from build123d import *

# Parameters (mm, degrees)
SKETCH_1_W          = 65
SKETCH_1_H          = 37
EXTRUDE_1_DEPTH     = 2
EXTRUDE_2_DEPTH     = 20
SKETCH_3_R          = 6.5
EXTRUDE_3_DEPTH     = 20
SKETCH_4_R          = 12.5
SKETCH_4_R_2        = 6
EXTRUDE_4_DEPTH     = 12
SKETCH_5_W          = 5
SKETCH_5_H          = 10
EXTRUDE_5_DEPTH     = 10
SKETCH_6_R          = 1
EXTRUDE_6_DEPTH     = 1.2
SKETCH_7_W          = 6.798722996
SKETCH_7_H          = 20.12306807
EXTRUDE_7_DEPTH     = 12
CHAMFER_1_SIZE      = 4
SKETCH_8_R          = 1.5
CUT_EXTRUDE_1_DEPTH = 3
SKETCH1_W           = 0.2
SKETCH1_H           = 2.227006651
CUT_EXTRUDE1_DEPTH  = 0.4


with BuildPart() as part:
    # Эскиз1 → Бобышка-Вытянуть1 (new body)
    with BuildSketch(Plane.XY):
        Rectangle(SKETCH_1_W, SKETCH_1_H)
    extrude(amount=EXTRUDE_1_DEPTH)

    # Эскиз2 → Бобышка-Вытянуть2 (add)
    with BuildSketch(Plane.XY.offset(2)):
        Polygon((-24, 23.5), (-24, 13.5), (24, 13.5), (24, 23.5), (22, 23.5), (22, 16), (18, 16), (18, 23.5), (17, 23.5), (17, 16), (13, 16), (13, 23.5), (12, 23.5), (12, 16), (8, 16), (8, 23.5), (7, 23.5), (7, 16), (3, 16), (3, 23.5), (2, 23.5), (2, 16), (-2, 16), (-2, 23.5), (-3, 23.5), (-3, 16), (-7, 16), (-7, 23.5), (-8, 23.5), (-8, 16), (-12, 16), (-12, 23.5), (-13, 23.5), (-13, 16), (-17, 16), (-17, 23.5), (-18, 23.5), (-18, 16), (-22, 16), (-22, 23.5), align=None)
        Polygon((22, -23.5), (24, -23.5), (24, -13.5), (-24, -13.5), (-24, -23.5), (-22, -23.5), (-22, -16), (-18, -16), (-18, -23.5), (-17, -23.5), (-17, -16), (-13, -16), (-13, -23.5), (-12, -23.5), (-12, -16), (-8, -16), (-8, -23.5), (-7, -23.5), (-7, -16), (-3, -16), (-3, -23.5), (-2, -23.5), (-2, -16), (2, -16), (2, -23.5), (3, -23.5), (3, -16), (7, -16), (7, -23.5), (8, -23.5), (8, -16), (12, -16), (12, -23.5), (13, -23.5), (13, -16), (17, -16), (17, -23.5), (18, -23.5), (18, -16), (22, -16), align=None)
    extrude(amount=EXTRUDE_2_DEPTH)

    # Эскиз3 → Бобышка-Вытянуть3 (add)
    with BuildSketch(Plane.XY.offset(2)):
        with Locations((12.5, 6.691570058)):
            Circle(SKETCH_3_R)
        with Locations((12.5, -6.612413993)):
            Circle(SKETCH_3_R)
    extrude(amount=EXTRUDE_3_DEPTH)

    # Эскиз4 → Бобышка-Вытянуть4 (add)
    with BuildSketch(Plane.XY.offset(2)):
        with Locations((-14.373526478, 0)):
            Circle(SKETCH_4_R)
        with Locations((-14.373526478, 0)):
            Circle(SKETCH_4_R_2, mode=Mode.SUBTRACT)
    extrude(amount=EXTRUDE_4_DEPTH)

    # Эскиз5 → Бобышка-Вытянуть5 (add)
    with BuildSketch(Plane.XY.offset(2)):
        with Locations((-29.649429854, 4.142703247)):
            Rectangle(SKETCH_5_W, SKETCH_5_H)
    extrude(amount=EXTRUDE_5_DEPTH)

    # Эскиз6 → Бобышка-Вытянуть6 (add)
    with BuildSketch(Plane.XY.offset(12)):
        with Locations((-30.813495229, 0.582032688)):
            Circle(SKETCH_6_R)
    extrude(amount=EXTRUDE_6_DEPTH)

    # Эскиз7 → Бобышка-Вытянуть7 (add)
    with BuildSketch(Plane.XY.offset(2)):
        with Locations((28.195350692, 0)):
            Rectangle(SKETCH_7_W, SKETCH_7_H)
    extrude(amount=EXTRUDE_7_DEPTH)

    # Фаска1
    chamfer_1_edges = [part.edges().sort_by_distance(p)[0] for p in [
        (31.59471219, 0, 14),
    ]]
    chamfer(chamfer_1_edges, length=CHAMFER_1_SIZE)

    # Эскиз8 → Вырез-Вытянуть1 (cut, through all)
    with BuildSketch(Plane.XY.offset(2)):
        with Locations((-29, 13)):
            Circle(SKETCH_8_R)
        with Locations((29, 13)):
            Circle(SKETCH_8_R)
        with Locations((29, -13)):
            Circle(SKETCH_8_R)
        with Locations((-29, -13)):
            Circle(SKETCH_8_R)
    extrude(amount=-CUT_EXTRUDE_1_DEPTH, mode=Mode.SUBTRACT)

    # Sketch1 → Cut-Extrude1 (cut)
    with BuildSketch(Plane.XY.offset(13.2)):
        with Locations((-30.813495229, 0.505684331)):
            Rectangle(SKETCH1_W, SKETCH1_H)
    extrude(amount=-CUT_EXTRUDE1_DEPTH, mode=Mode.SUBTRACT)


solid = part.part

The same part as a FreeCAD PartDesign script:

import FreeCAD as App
import Part
import Sketcher

V = App.Vector


def edges_at(feature, points):
    """Names of the edges that pass closest to the given points."""
    edges = feature.Shape.Edges
    near = lambda p: min(range(len(edges)), key=lambda i: edges[i].distToShape(Part.Vertex(*p))[0])
    return sorted({f"Edge{near(p) + 1}" for p in points})

doc = App.newDocument("Part")
body = doc.addObject("PartDesign::Body", "Body")

# Sketch on XY plane
sketch1 = body.newObject("Sketcher::SketchObject", "Sketch")
sketch1.AttachmentSupport = (doc.getObject("XY_Plane"), [""])
sketch1.MapMode = "FlatFace"
sketch1.addGeometry(Part.LineSegment(V(-32, 18, 0), V(-32, -18, 0)), False)
sketch1.addGeometry(Part.LineSegment(V(-32, -18, 0), V(32, -18, 0)), False)
sketch1.addGeometry(Part.LineSegment(V(32, -18, 0), V(32, 18, 0)), False)
sketch1.addGeometry(Part.LineSegment(V(32, 18, 0), V(-32, 18, 0)), False)
sketch1.addConstraint(Sketcher.Constraint("Coincident", 0, 2, 1, 1))
sketch1.addConstraint(Sketcher.Constraint("Coincident", 1, 2, 2, 1))
sketch1.addConstraint(Sketcher.Constraint("Coincident", 2, 2, 3, 1))
sketch1.addConstraint(Sketcher.Constraint("Coincident", 3, 2, 0, 1))
sketch1.addConstraint(Sketcher.Constraint("Vertical", 0))
sketch1.addConstraint(Sketcher.Constraint("Horizontal", 1))
sketch1.addConstraint(Sketcher.Constraint("Vertical", 2))
sketch1.addConstraint(Sketcher.Constraint("Horizontal", 3))
sketch1.addConstraint(Sketcher.Constraint("Symmetric", 0, 2, 2, 2, -1, 1))
sketch1.addConstraint(Sketcher.Constraint("DistanceX", 1, 1, 1, 2, 65.0))
sketch1.addConstraint(Sketcher.Constraint("DistanceY", 0, 2, 0, 1, 37.0))
pad1 = body.newObject("PartDesign::Pad", "Pad")
pad1.Profile = sketch1
pad1.Length = 2

# Sketch on XY plane
sketch2 = body.newObject("Sketcher::SketchObject", "Sketch001")
sketch2.AttachmentSupport = (doc.getObject("XY_Plane"), [""])
sketch2.MapMode = "FlatFace"
sketch2.AttachmentOffset = App.Placement(V(0, 0, 2), App.Rotation())
sketch2.addGeometry(Part.LineSegment(V(-24, 23.5, 0), V(-24, 13.5, 0)), False)
sketch2.addGeometry(Part.LineSegment(V(-24, 13.5, 0), V(24, 13.5, 0)), False)
sketch2.addGeometry(Part.LineSegment(V(24, 13.5, 0), V(24, 23.5, 0)), False)
sketch2.addGeometry(Part.LineSegment(V(24, 23.5, 0), V(22, 23.5, 0)), False)
sketch2.addGeometry(Part.LineSegment(V(22, 23.5, 0), V(22, 16, 0)), False)
sketch2.addGeometry(Part.LineSegment(V(22, 16, 0), V(18, 16, 0)), False)
sketch2.addGeometry(Part.LineSegment(V(18, 16, 0), V(18, 23.5, 0)), False)
sketch2.addGeometry(Part.LineSegment(V(18, 23.5, 0), V(17, 23.5, 0)), False)
sketch2.addGeometry(Part.LineSegment(V(17, 23.5, 0), V(17, 16, 0)), False)
sketch2.addGeometry(Part.LineSegment(V(17, 16, 0), V(13, 16, 0)), False)
sketch2.addGeometry(Part.LineSegment(V(13, 16, 0), V(13, 23.5, 0)), False)
sketch2.addGeometry(Part.LineSegment(V(13, 23.5, 0), V(12, 23.5, 0)), False)
sketch2.addGeometry(Part.LineSegment(V(12, 23.5, 0), V(12, 16, 0)), False)
sketch2.addGeometry(Part.LineSegment(V(12, 16, 0), V(8, 16, 0)), False)
sketch2.addGeometry(Part.LineSegment(V(8, 16, 0), V(8, 23.5, 0)), False)
sketch2.addGeometry(Part.LineSegment(V(8, 23.5, 0), V(7, 23.5, 0)), False)
sketch2.addGeometry(Part.LineSegment(V(7, 23.5, 0), V(7, 16, 0)), False)
sketch2.addGeometry(Part.LineSegment(V(7, 16, 0), V(3, 16, 0)), False)
sketch2.addGeometry(Part.LineSegment(V(3, 16, 0), V(3, 23.5, 0)), False)
sketch2.addGeometry(Part.LineSegment(V(3, 23.5, 0), V(2, 23.5, 0)), False)
sketch2.addGeometry(Part.LineSegment(V(2, 23.5, 0), V(2, 16, 0)), False)
sketch2.addGeometry(Part.LineSegment(V(2, 16, 0), V(-2, 16, 0)), False)
sketch2.addGeometry(Part.LineSegment(V(-2, 16, 0), V(-2, 23.5, 0)), False)
sketch2.addGeometry(Part.LineSegment(V(-2, 23.5, 0), V(-3, 23.5, 0)), False)
sketch2.addGeometry(Part.LineSegment(V(-3, 23.5, 0), V(-3, 16, 0)), False)
sketch2.addGeometry(Part.LineSegment(V(-3, 16, 0), V(-7, 16, 0)), False)
sketch2.addGeometry(Part.LineSegment(V(-7, 16, 0), V(-7, 23.5, 0)), False)
sketch2.addGeometry(Part.LineSegment(V(-7, 23.5, 0), V(-8, 23.5, 0)), False)
sketch2.addGeometry(Part.LineSegment(V(-8, 23.5, 0), V(-8, 16, 0)), False)
sketch2.addGeometry(Part.LineSegment(V(-8, 16, 0), V(-12, 16, 0)), False)
sketch2.addGeometry(Part.LineSegment(V(-12, 16, 0), V(-12, 23.5, 0)), False)
sketch2.addGeometry(Part.LineSegment(V(-12, 23.5, 0), V(-13, 23.5, 0)), False)
sketch2.addGeometry(Part.LineSegment(V(-13, 23.5, 0), V(-13, 16, 0)), False)
sketch2.addGeometry(Part.LineSegment(V(-13, 16, 0), V(-17, 16, 0)), False)
sketch2.addGeometry(Part.LineSegment(V(-17, 16, 0), V(-17, 23.5, 0)), False)
sketch2.addGeometry(Part.LineSegment(V(-17, 23.5, 0), V(-18, 23.5, 0)), False)
sketch2.addGeometry(Part.LineSegment(V(-18, 23.5, 0), V(-18, 16, 0)), False)
sketch2.addGeometry(Part.LineSegment(V(-18, 16, 0), V(-22, 16, 0)), False)
sketch2.addGeometry(Part.LineSegment(V(-22, 16, 0), V(-22, 23.5, 0)), False)
sketch2.addGeometry(Part.LineSegment(V(-22, 23.5, 0), V(-24, 23.5, 0)), False)
sketch2.addGeometry(Part.LineSegment(V(22, -23.5, 0), V(24, -23.5, 0)), False)
sketch2.addGeometry(Part.LineSegment(V(24, -23.5, 0), V(24, -13.5, 0)), False)
sketch2.addGeometry(Part.LineSegment(V(24, -13.5, 0), V(-24, -13.5, 0)), False)
sketch2.addGeometry(Part.LineSegment(V(-24, -13.5, 0), V(-24, -23.5, 0)), False)
sketch2.addGeometry(Part.LineSegment(V(-24, -23.5, 0), V(-22, -23.5, 0)), False)
sketch2.addGeometry(Part.LineSegment(V(-22, -23.5, 0), V(-22, -16, 0)), False)
sketch2.addGeometry(Part.LineSegment(V(-22, -16, 0), V(-18, -16, 0)), False)
sketch2.addGeometry(Part.LineSegment(V(-18, -16, 0), V(-18, -23.5, 0)), False)
sketch2.addGeometry(Part.LineSegment(V(-18, -23.5, 0), V(-17, -23.5, 0)), False)
sketch2.addGeometry(Part.LineSegment(V(-17, -23.5, 0), V(-17, -16, 0)), False)
sketch2.addGeometry(Part.LineSegment(V(-17, -16, 0), V(-13, -16, 0)), False)
sketch2.addGeometry(Part.LineSegment(V(-13, -16, 0), V(-13, -23.5, 0)), False)
sketch2.addGeometry(Part.LineSegment(V(-13, -23.5, 0), V(-12, -23.5, 0)), False)
sketch2.addGeometry(Part.LineSegment(V(-12, -23.5, 0), V(-12, -16, 0)), False)
sketch2.addGeometry(Part.LineSegment(V(-12, -16, 0), V(-8, -16, 0)), False)
sketch2.addGeometry(Part.LineSegment(V(-8, -16, 0), V(-8, -23.5, 0)), False)
sketch2.addGeometry(Part.LineSegment(V(-8, -23.5, 0), V(-7, -23.5, 0)), False)
sketch2.addGeometry(Part.LineSegment(V(-7, -23.5, 0), V(-7, -16, 0)), False)
sketch2.addGeometry(Part.LineSegment(V(-7, -16, 0), V(-3, -16, 0)), False)
sketch2.addGeometry(Part.LineSegment(V(-3, -16, 0), V(-3, -23.5, 0)), False)
sketch2.addGeometry(Part.LineSegment(V(-3, -23.5, 0), V(-2, -23.5, 0)), False)
sketch2.addGeometry(Part.LineSegment(V(-2, -23.5, 0), V(-2, -16, 0)), False)
sketch2.addGeometry(Part.LineSegment(V(-2, -16, 0), V(2, -16, 0)), False)
sketch2.addGeometry(Part.LineSegment(V(2, -16, 0), V(2, -23.5, 0)), False)
sketch2.addGeometry(Part.LineSegment(V(2, -23.5, 0), V(3, -23.5, 0)), False)
sketch2.addGeometry(Part.LineSegment(V(3, -23.5, 0), V(3, -16, 0)), False)
sketch2.addGeometry(Part.LineSegment(V(3, -16, 0), V(7, -16, 0)), False)
sketch2.addGeometry(Part.LineSegment(V(7, -16, 0), V(7, -23.5, 0)), False)
sketch2.addGeometry(Part.LineSegment(V(7, -23.5, 0), V(8, -23.5, 0)), False)
sketch2.addGeometry(Part.LineSegment(V(8, -23.5, 0), V(8, -16, 0)), False)
sketch2.addGeometry(Part.LineSegment(V(8, -16, 0), V(12, -16, 0)), False)
sketch2.addGeometry(Part.LineSegment(V(12, -16, 0), V(12, -23.5, 0)), False)
sketch2.addGeometry(Part.LineSegment(V(12, -23.5, 0), V(13, -23.5, 0)), False)
sketch2.addGeometry(Part.LineSegment(V(13, -23.5, 0), V(13, -16, 0)), False)
sketch2.addGeometry(Part.LineSegment(V(13, -16, 0), V(17, -16, 0)), False)
sketch2.addGeometry(Part.LineSegment(V(17, -16, 0), V(17, -23.5, 0)), False)
sketch2.addGeometry(Part.LineSegment(V(17, -23.5, 0), V(18, -23.5, 0)), False)
sketch2.addGeometry(Part.LineSegment(V(18, -23.5, 0), V(18, -16, 0)), False)
sketch2.addGeometry(Part.LineSegment(V(18, -16, 0), V(22, -16, 0)), False)
sketch2.addGeometry(Part.LineSegment(V(22, -16, 0), V(22, -23.5, 0)), False)
sketch2.addConstraint(Sketcher.Constraint("Coincident", 0, 2, 1, 1))
sketch2.addConstraint(Sketcher.Constraint("Coincident", 1, 2, 2, 1))
sketch2.addConstraint(Sketcher.Constraint("Coincident", 2, 2, 3, 1))
sketch2.addConstraint(Sketcher.Constraint("Coincident", 3, 2, 4, 1))
sketch2.addConstraint(Sketcher.Constraint("Coincident", 4, 2, 5, 1))
sketch2.addConstraint(Sketcher.Constraint("Coincident", 5, 2, 6, 1))
sketch2.addConstraint(Sketcher.Constraint("Coincident", 6, 2, 7, 1))
sketch2.addConstraint(Sketcher.Constraint("Coincident", 7, 2, 8, 1))
sketch2.addConstraint(Sketcher.Constraint("Coincident", 8, 2, 9, 1))
sketch2.addConstraint(Sketcher.Constraint("Coincident", 9, 2, 10, 1))
sketch2.addConstraint(Sketcher.Constraint("Coincident", 10, 2, 11, 1))
sketch2.addConstraint(Sketcher.Constraint("Coincident", 11, 2, 12, 1))
sketch2.addConstraint(Sketcher.Constraint("Coincident", 12, 2, 13, 1))
sketch2.addConstraint(Sketcher.Constraint("Coincident", 13, 2, 14, 1))
sketch2.addConstraint(Sketcher.Constraint("Coincident", 14, 2, 15, 1))
sketch2.addConstraint(Sketcher.Constraint("Coincident", 15, 2, 16, 1))
sketch2.addConstraint(Sketcher.Constraint("Coincident", 16, 2, 17, 1))
sketch2.addConstraint(Sketcher.Constraint("Coincident", 17, 2, 18, 1))
sketch2.addConstraint(Sketcher.Constraint("Coincident", 18, 2, 19, 1))
sketch2.addConstraint(Sketcher.Constraint("Coincident", 19, 2, 20, 1))
sketch2.addConstraint(Sketcher.Constraint("Coincident", 20, 2, 21, 1))
sketch2.addConstraint(Sketcher.Constraint("Coincident", 21, 2, 22, 1))
sketch2.addConstraint(Sketcher.Constraint("Coincident", 22, 2, 23, 1))
sketch2.addConstraint(Sketcher.Constraint("Coincident", 23, 2, 24, 1))
sketch2.addConstraint(Sketcher.Constraint("Coincident", 24, 2, 25, 1))
sketch2.addConstraint(Sketcher.Constraint("Coincident", 25, 2, 26, 1))
sketch2.addConstraint(Sketcher.Constraint("Coincident", 26, 2, 27, 1))
sketch2.addConstraint(Sketcher.Constraint("Coincident", 27, 2, 28, 1))
sketch2.addConstraint(Sketcher.Constraint("Coincident", 28, 2, 29, 1))
sketch2.addConstraint(Sketcher.Constraint("Coincident", 29, 2, 30, 1))
sketch2.addConstraint(Sketcher.Constraint("Coincident", 30, 2, 31, 1))
sketch2.addConstraint(Sketcher.Constraint("Coincident", 31, 2, 32, 1))
sketch2.addConstraint(Sketcher.Constraint("Coincident", 32, 2, 33, 1))
sketch2.addConstraint(Sketcher.Constraint("Coincident", 33, 2, 34, 1))
sketch2.addConstraint(Sketcher.Constraint("Coincident", 34, 2, 35, 1))
sketch2.addConstraint(Sketcher.Constraint("Coincident", 35, 2, 36, 1))
sketch2.addConstraint(Sketcher.Constraint("Coincident", 36, 2, 37, 1))
sketch2.addConstraint(Sketcher.Constraint("Coincident", 37, 2, 38, 1))
sketch2.addConstraint(Sketcher.Constraint("Coincident", 38, 2, 39, 1))
sketch2.addConstraint(Sketcher.Constraint("Coincident", 39, 2, 0, 1))
sketch2.addConstraint(Sketcher.Constraint("Coincident", 40, 2, 41, 1))
sketch2.addConstraint(Sketcher.Constraint("Coincident", 41, 2, 42, 1))
sketch2.addConstraint(Sketcher.Constraint("Coincident", 42, 2, 43, 1))
sketch2.addConstraint(Sketcher.Constraint("Coincident", 43, 2, 44, 1))
sketch2.addConstraint(Sketcher.Constraint("Coincident", 44, 2, 45, 1))
sketch2.addConstraint(Sketcher.Constraint("Coincident", 45, 2, 46, 1))
sketch2.addConstraint(Sketcher.Constraint("Coincident", 46, 2, 47, 1))
sketch2.addConstraint(Sketcher.Constraint("Coincident", 47, 2, 48, 1))
sketch2.addConstraint(Sketcher.Constraint("Coincident", 48, 2, 49, 1))
sketch2.addConstraint(Sketcher.Constraint("Coincident", 49, 2, 50, 1))
sketch2.addConstraint(Sketcher.Constraint("Coincident", 50, 2, 51, 1))
sketch2.addConstraint(Sketcher.Constraint("Coincident", 51, 2, 52, 1))
sketch2.addConstraint(Sketcher.Constraint("Coincident", 52, 2, 53, 1))
sketch2.addConstraint(Sketcher.Constraint("Coincident", 53, 2, 54, 1))
sketch2.addConstraint(Sketcher.Constraint("Coincident", 54, 2, 55, 1))
sketch2.addConstraint(Sketcher.Constraint("Coincident", 55, 2, 56, 1))
sketch2.addConstraint(Sketcher.Constraint("Coincident", 56, 2, 57, 1))
sketch2.addConstraint(Sketcher.Constraint("Coincident", 57, 2, 58, 1))
sketch2.addConstraint(Sketcher.Constraint("Coincident", 58, 2, 59, 1))
sketch2.addConstraint(Sketcher.Constraint("Coincident", 59, 2, 60, 1))
sketch2.addConstraint(Sketcher.Constraint("Coincident", 60, 2, 61, 1))
sketch2.addConstraint(Sketcher.Constraint("Coincident", 61, 2, 62, 1))
sketch2.addConstraint(Sketcher.Constraint("Coincident", 62, 2, 63, 1))
sketch2.addConstraint(Sketcher.Constraint("Coincident", 63, 2, 64, 1))
sketch2.addConstraint(Sketcher.Constraint("Coincident", 64, 2, 65, 1))
sketch2.addConstraint(Sketcher.Constraint("Coincident", 65, 2, 66, 1))
sketch2.addConstraint(Sketcher.Constraint("Coincident", 66, 2, 67, 1))
sketch2.addConstraint(Sketcher.Constraint("Coincident", 67, 2, 68, 1))
sketch2.addConstraint(Sketcher.Constraint("Coincident", 68, 2, 69, 1))
sketch2.addConstraint(Sketcher.Constraint("Coincident", 69, 2, 70, 1))
sketch2.addConstraint(Sketcher.Constraint("Coincident", 70, 2, 71, 1))
sketch2.addConstraint(Sketcher.Constraint("Coincident", 71, 2, 72, 1))
sketch2.addConstraint(Sketcher.Constraint("Coincident", 72, 2, 73, 1))
sketch2.addConstraint(Sketcher.Constraint("Coincident", 73, 2, 74, 1))
sketch2.addConstraint(Sketcher.Constraint("Coincident", 74, 2, 75, 1))
sketch2.addConstraint(Sketcher.Constraint("Coincident", 75, 2, 76, 1))
sketch2.addConstraint(Sketcher.Constraint("Coincident", 76, 2, 77, 1))
sketch2.addConstraint(Sketcher.Constraint("Coincident", 77, 2, 78, 1))
sketch2.addConstraint(Sketcher.Constraint("Coincident", 78, 2, 79, 1))
sketch2.addConstraint(Sketcher.Constraint("Coincident", 79, 2, 40, 1))
sketch2.addConstraint(Sketcher.Constraint("Vertical", 0))
sketch2.addConstraint(Sketcher.Constraint("Horizontal", 1))
sketch2.addConstraint(Sketcher.Constraint("Vertical", 2))
sketch2.addConstraint(Sketcher.Constraint("Horizontal", 3))
sketch2.addConstraint(Sketcher.Constraint("Vertical", 4))
sketch2.addConstraint(Sketcher.Constraint("Horizontal", 5))
sketch2.addConstraint(Sketcher.Constraint("Vertical", 6))
sketch2.addConstraint(Sketcher.Constraint("Horizontal", 7))
sketch2.addConstraint(Sketcher.Constraint("Vertical", 8))
sketch2.addConstraint(Sketcher.Constraint("Horizontal", 9))
sketch2.addConstraint(Sketcher.Constraint("Vertical", 10))
sketch2.addConstraint(Sketcher.Constraint("Horizontal", 11))
sketch2.addConstraint(Sketcher.Constraint("Vertical", 12))
sketch2.addConstraint(Sketcher.Constraint("Horizontal", 13))
sketch2.addConstraint(Sketcher.Constraint("Vertical", 14))
sketch2.addConstraint(Sketcher.Constraint("Horizontal", 15))
sketch2.addConstraint(Sketcher.Constraint("Vertical", 16))
sketch2.addConstraint(Sketcher.Constraint("Horizontal", 17))
sketch2.addConstraint(Sketcher.Constraint("Vertical", 18))
sketch2.addConstraint(Sketcher.Constraint("Horizontal", 19))
sketch2.addConstraint(Sketcher.Constraint("Vertical", 20))
sketch2.addConstraint(Sketcher.Constraint("Horizontal", 21))
sketch2.addConstraint(Sketcher.Constraint("Vertical", 22))
sketch2.addConstraint(Sketcher.Constraint("Horizontal", 23))
sketch2.addConstraint(Sketcher.Constraint("Vertical", 24))
sketch2.addConstraint(Sketcher.Constraint("Horizontal", 25))
sketch2.addConstraint(Sketcher.Constraint("Vertical", 26))
sketch2.addConstraint(Sketcher.Constraint("Horizontal", 27))
sketch2.addConstraint(Sketcher.Constraint("Vertical", 28))
sketch2.addConstraint(Sketcher.Constraint("Horizontal", 29))
sketch2.addConstraint(Sketcher.Constraint("Vertical", 30))
sketch2.addConstraint(Sketcher.Constraint("Horizontal", 31))
sketch2.addConstraint(Sketcher.Constraint("Vertical", 32))
sketch2.addConstraint(Sketcher.Constraint("Horizontal", 33))
sketch2.addConstraint(Sketcher.Constraint("Vertical", 34))
sketch2.addConstraint(Sketcher.Constraint("Horizontal", 35))
sketch2.addConstraint(Sketcher.Constraint("Vertical", 36))
sketch2.addConstraint(Sketcher.Constraint("Horizontal", 37))
sketch2.addConstraint(Sketcher.Constraint("Vertical", 38))
sketch2.addConstraint(Sketcher.Constraint("Horizontal", 39))
sketch2.addConstraint(Sketcher.Constraint("Horizontal", 40))
sketch2.addConstraint(Sketcher.Constraint("Vertical", 41))
sketch2.addConstraint(Sketcher.Constraint("Horizontal", 42))
sketch2.addConstraint(Sketcher.Constraint("Vertical", 43))
sketch2.addConstraint(Sketcher.Constraint("Horizontal", 44))
sketch2.addConstraint(Sketcher.Constraint("Vertical", 45))
sketch2.addConstraint(Sketcher.Constraint("Horizontal", 46))
sketch2.addConstraint(Sketcher.Constraint("Vertical", 47))
sketch2.addConstraint(Sketcher.Constraint("Horizontal", 48))
sketch2.addConstraint(Sketcher.Constraint("Vertical", 49))
sketch2.addConstraint(Sketcher.Constraint("Horizontal", 50))
sketch2.addConstraint(Sketcher.Constraint("Vertical", 51))
sketch2.addConstraint(Sketcher.Constraint("Horizontal", 52))
sketch2.addConstraint(Sketcher.Constraint("Vertical", 53))
sketch2.addConstraint(Sketcher.Constraint("Horizontal", 54))
sketch2.addConstraint(Sketcher.Constraint("Vertical", 55))
sketch2.addConstraint(Sketcher.Constraint("Horizontal", 56))
sketch2.addConstraint(Sketcher.Constraint("Vertical", 57))
sketch2.addConstraint(Sketcher.Constraint("Horizontal", 58))
sketch2.addConstraint(Sketcher.Constraint("Vertical", 59))
sketch2.addConstraint(Sketcher.Constraint("Horizontal", 60))
sketch2.addConstraint(Sketcher.Constraint("Vertical", 61))
sketch2.addConstraint(Sketcher.Constraint("Horizontal", 62))
sketch2.addConstraint(Sketcher.Constraint("Vertical", 63))
sketch2.addConstraint(Sketcher.Constraint("Horizontal", 64))
sketch2.addConstraint(Sketcher.Constraint("Vertical", 65))
sketch2.addConstraint(Sketcher.Constraint("Horizontal", 66))
sketch2.addConstraint(Sketcher.Constraint("Vertical", 67))
sketch2.addConstraint(Sketcher.Constraint("Horizontal", 68))
sketch2.addConstraint(Sketcher.Constraint("Vertical", 69))
sketch2.addConstraint(Sketcher.Constraint("Horizontal", 70))
sketch2.addConstraint(Sketcher.Constraint("Vertical", 71))
sketch2.addConstraint(Sketcher.Constraint("Horizontal", 72))
sketch2.addConstraint(Sketcher.Constraint("Vertical", 73))
sketch2.addConstraint(Sketcher.Constraint("Horizontal", 74))
sketch2.addConstraint(Sketcher.Constraint("Vertical", 75))
sketch2.addConstraint(Sketcher.Constraint("Horizontal", 76))
sketch2.addConstraint(Sketcher.Constraint("Vertical", 77))
sketch2.addConstraint(Sketcher.Constraint("Horizontal", 78))
sketch2.addConstraint(Sketcher.Constraint("Vertical", 79))
sketch2.addConstraint(Sketcher.Constraint("Symmetric", 39, 2, 40, 2, -1, 1))
sketch2.addConstraint(Sketcher.Constraint("Symmetric", 1, 2, 42, 2, -1, 1))
sketch2.addConstraint(Sketcher.Constraint("Symmetric", 3, 2, 44, 2, -1, 1))
sketch2.addConstraint(Sketcher.Constraint("Symmetric", 5, 2, 46, 2, -1, 1))
sketch2.addConstraint(Sketcher.Constraint("Symmetric", 7, 2, 48, 2, -1, 1))
sketch2.addConstraint(Sketcher.Constraint("Symmetric", 9, 2, 50, 2, -1, 1))
sketch2.addConstraint(Sketcher.Constraint("Symmetric", 11, 2, 52, 2, -1, 1))
sketch2.addConstraint(Sketcher.Constraint("Symmetric", 13, 2, 54, 2, -1, 1))
sketch2.addConstraint(Sketcher.Constraint("Symmetric", 15, 2, 56, 2, -1, 1))
sketch2.addConstraint(Sketcher.Constraint("Symmetric", 17, 2, 58, 2, -1, 1))
sketch2.addConstraint(Sketcher.Constraint("Symmetric", 19, 2, 60, 2, -1, 1))
sketch2.addConstraint(Sketcher.Constraint("Symmetric", 21, 2, 62, 2, -1, 1))
sketch2.addConstraint(Sketcher.Constraint("Symmetric", 23, 2, 64, 2, -1, 1))
sketch2.addConstraint(Sketcher.Constraint("Symmetric", 25, 2, 66, 2, -1, 1))
sketch2.addConstraint(Sketcher.Constraint("Symmetric", 27, 2, 68, 2, -1, 1))
sketch2.addConstraint(Sketcher.Constraint("Symmetric", 29, 2, 70, 2, -1, 1))
sketch2.addConstraint(Sketcher.Constraint("Symmetric", 31, 2, 72, 2, -1, 1))
sketch2.addConstraint(Sketcher.Constraint("Symmetric", 33, 2, 74, 2, -1, 1))
sketch2.addConstraint(Sketcher.Constraint("Symmetric", 35, 2, 76, 2, -1, 1))
sketch2.addConstraint(Sketcher.Constraint("Symmetric", 37, 2, 78, 2, -1, 1))
sketch2.addConstraint(Sketcher.Constraint("Symmetric", 19, 2, 22, 2, -2))
sketch2.addConstraint(Sketcher.Constraint("Symmetric", 17, 2, 24, 2, -2))
sketch2.addConstraint(Sketcher.Constraint("Symmetric", 15, 2, 26, 2, -2))
sketch2.addConstraint(Sketcher.Constraint("Symmetric", 13, 2, 28, 2, -2))
sketch2.addConstraint(Sketcher.Constraint("Symmetric", 11, 2, 30, 2, -2))
sketch2.addConstraint(Sketcher.Constraint("Symmetric", 9, 2, 32, 2, -2))
sketch2.addConstraint(Sketcher.Constraint("Symmetric", 7, 2, 34, 2, -2))
sketch2.addConstraint(Sketcher.Constraint("Symmetric", 5, 2, 36, 2, -2))
sketch2.addConstraint(Sketcher.Constraint("Symmetric", 3, 2, 38, 2, -2))
sketch2.addConstraint(Sketcher.Constraint("Horizontal", 3, 2, 6, 2))
sketch2.addConstraint(Sketcher.Constraint("Horizontal", 5, 2, 8, 2))
sketch2.addConstraint(Sketcher.Constraint("Horizontal", 7, 2, 10, 2))
sketch2.addConstraint(Sketcher.Constraint("Horizontal", 9, 2, 12, 2))
sketch2.addConstraint(Sketcher.Constraint("Horizontal", 11, 2, 14, 2))
sketch2.addConstraint(Sketcher.Constraint("Horizontal", 13, 2, 16, 2))
sketch2.addConstraint(Sketcher.Constraint("Horizontal", 15, 2, 18, 2))
sketch2.addConstraint(Sketcher.Constraint("Horizontal", 17, 2, 20, 2))
sketch2.addConstraint(Sketcher.Constraint("Vertical", 2, 2, 40, 2))
sketch2.addConstraint(Sketcher.Constraint("Equal", 5, 9))
sketch2.addConstraint(Sketcher.Constraint("Equal", 7, 11))
sketch2.addConstraint(Sketcher.Constraint("Equal", 9, 13))
sketch2.addConstraint(Sketcher.Constraint("Equal", 11, 15))
sketch2.addConstraint(Sketcher.Constraint("Equal", 13, 17))
sketch2.addConstraint(Sketcher.Constraint("Equal", 15, 19))
sketch2.addConstraint(Sketcher.Constraint("Equal", 17, 21))
sketch2.addConstraint(Sketcher.Constraint("DistanceX", 1, 1, 1, 2, 48.0))
sketch2.addConstraint(Sketcher.Constraint("DistanceX", 3, 2, 3, 1, 2.0))
sketch2.addConstraint(Sketcher.Constraint("DistanceX", 5, 2, 5, 1, 4.0))
sketch2.addConstraint(Sketcher.Constraint("DistanceY", 0, 2, 0, 1, 10.0))
sketch2.addConstraint(Sketcher.Constraint("DistanceY", 4, 2, 4, 1, 7.5))
sketch2.addConstraint(Sketcher.Constraint("DistanceY", -1, 1, 4, 2, 16.0))
pad2 = body.newObject("PartDesign::Pad", "Pad001")
pad2.Profile = sketch2
pad2.Length = 20

# Sketch on XY plane
sketch3 = body.newObject("Sketcher::SketchObject", "Sketch002")
sketch3.AttachmentSupport = (doc.getObject("XY_Plane"), [""])
sketch3.MapMode = "FlatFace"
sketch3.AttachmentOffset = App.Placement(V(0, 0, 2), App.Rotation())
sketch3.addGeometry(Part.Circle(V(12, 7, 0), V(0, 0, 1), 6), False)
sketch3.addGeometry(Part.Circle(V(12, -7, 0), V(0, 0, 1), 6), False)
sketch3.addConstraint(Sketcher.Constraint("Equal", 0, 1))
sketch3.addConstraint(Sketcher.Constraint("Vertical", 0, 3, 1, 3))
sketch3.addConstraint(Sketcher.Constraint("Diameter", 0, 13.0))
sketch3.addConstraint(Sketcher.Constraint("DistanceX", -1, 1, 0, 3, 12.5))
sketch3.addConstraint(Sketcher.Constraint("DistanceY", -1, 1, 0, 3, 6.69157))
sketch3.addConstraint(Sketcher.Constraint("DistanceY", 1, 3, -1, 1, 6.612414))
pad3 = body.newObject("PartDesign::Pad", "Pad002")
pad3.Profile = sketch3
pad3.Length = 20

# Sketch on XY plane
sketch4 = body.newObject("Sketcher::SketchObject", "Sketch003")
sketch4.AttachmentSupport = (doc.getObject("XY_Plane"), [""])
sketch4.MapMode = "FlatFace"
sketch4.AttachmentOffset = App.Placement(V(0, 0, 2), App.Rotation())
sketch4.addGeometry(Part.Circle(V(-14, 0, 0), V(0, 0, 1), 12), False)
sketch4.addGeometry(Part.Circle(V(-14, 0, 0), V(0, 0, 1), 6), False)
sketch4.addConstraint(Sketcher.Constraint("Coincident", 1, 3, 0, 3))
sketch4.addConstraint(Sketcher.Constraint("PointOnObject", 0, 3, -1))
sketch4.addConstraint(Sketcher.Constraint("Diameter", 0, 25.0))
sketch4.addConstraint(Sketcher.Constraint("Diameter", 1, 12.0))
sketch4.addConstraint(Sketcher.Constraint("DistanceX", 0, 3, -1, 1, 14.373526))
pad4 = body.newObject("PartDesign::Pad", "Pad003")
pad4.Profile = sketch4
pad4.Length = 12

# Sketch on XY plane
sketch5 = body.newObject("Sketcher::SketchObject", "Sketch004")
sketch5.AttachmentSupport = (doc.getObject("XY_Plane"), [""])
sketch5.MapMode = "FlatFace"
sketch5.AttachmentOffset = App.Placement(V(0, 0, 2), App.Rotation())
sketch5.addGeometry(Part.LineSegment(V(-32.1, 9.1, 0), V(-32.1, -0.9, 0)), False)
sketch5.addGeometry(Part.LineSegment(V(-32.1, -0.9, 0), V(-27.1, -0.9, 0)), False)
sketch5.addGeometry(Part.LineSegment(V(-27.1, -0.9, 0), V(-27.1, 9.1, 0)), False)
sketch5.addGeometry(Part.LineSegment(V(-27.1, 9.1, 0), V(-32.1, 9.1, 0)), False)
sketch5.addConstraint(Sketcher.Constraint("Coincident", 0, 2, 1, 1))
sketch5.addConstraint(Sketcher.Constraint("Coincident", 1, 2, 2, 1))
sketch5.addConstraint(Sketcher.Constraint("Coincident", 2, 2, 3, 1))
sketch5.addConstraint(Sketcher.Constraint("Coincident", 3, 2, 0, 1))
sketch5.addConstraint(Sketcher.Constraint("Vertical", 0))
sketch5.addConstraint(Sketcher.Constraint("Horizontal", 1))
sketch5.addConstraint(Sketcher.Constraint("Vertical", 2))
sketch5.addConstraint(Sketcher.Constraint("Horizontal", 3))
sketch5.addConstraint(Sketcher.Constraint("DistanceX", 1, 1, 1, 2, 5.0))
sketch5.addConstraint(Sketcher.Constraint("DistanceY", 0, 2, 0, 1, 10.0))
sketch5.addConstraint(Sketcher.Constraint("DistanceX", 0, 2, -1, 1, 32.14943))
sketch5.addConstraint(Sketcher.Constraint("DistanceY", 0, 2, -1, 1, 0.857297))
pad5 = body.newObject("PartDesign::Pad", "Pad004")
pad5.Profile = sketch5
pad5.Length = 10

# Sketch on XY plane
sketch6 = body.newObject("Sketcher::SketchObject", "Sketch005")
sketch6.AttachmentSupport = (doc.getObject("XY_Plane"), [""])
sketch6.MapMode = "FlatFace"
sketch6.AttachmentOffset = App.Placement(V(0, 0, 12), App.Rotation())
sketch6.addGeometry(Part.Circle(V(-30.8, 0.6, 0), V(0, 0, 1), 1), False)
sketch6.addConstraint(Sketcher.Constraint("Diameter", 0, 2.0))
sketch6.addConstraint(Sketcher.Constraint("DistanceX", 0, 3, -1, 1, 30.813495))
sketch6.addConstraint(Sketcher.Constraint("DistanceY", -1, 1, 0, 3, 0.582033))
pad6 = body.newObject("PartDesign::Pad", "Pad005")
pad6.Profile = sketch6
pad6.Length = 1.2

# Sketch on XY plane
sketch7 = body.newObject("Sketcher::SketchObject", "Sketch006")
sketch7.AttachmentSupport = (doc.getObject("XY_Plane"), [""])
sketch7.MapMode = "FlatFace"
sketch7.AttachmentOffset = App.Placement(V(0, 0, 2), App.Rotation())
sketch7.addGeometry(Part.LineSegment(V(25, 10, 0), V(25, -10, 0)), False)
sketch7.addGeometry(Part.LineSegment(V(25, -10, 0), V(32, -10, 0)), False)
sketch7.addGeometry(Part.LineSegment(V(32, -10, 0), V(32, 10, 0)), False)
sketch7.addGeometry(Part.LineSegment(V(32, 10, 0), V(25, 10, 0)), False)
sketch7.addConstraint(Sketcher.Constraint("Coincident", 0, 2, 1, 1))
sketch7.addConstraint(Sketcher.Constraint("Coincident", 1, 2, 2, 1))
sketch7.addConstraint(Sketcher.Constraint("Coincident", 2, 2, 3, 1))
sketch7.addConstraint(Sketcher.Constraint("Coincident", 3, 2, 0, 1))
sketch7.addConstraint(Sketcher.Constraint("Vertical", 0))
sketch7.addConstraint(Sketcher.Constraint("Horizontal", 1))
sketch7.addConstraint(Sketcher.Constraint("Vertical", 2))
sketch7.addConstraint(Sketcher.Constraint("Horizontal", 3))
sketch7.addConstraint(Sketcher.Constraint("DistanceY", 0, 2, 0, 1, 20.123068))
sketch7.addConstraint(Sketcher.Constraint("DistanceX", 1, 1, 1, 2, 6.798723))
sketch7.addConstraint(Sketcher.Constraint("DistanceX", -1, 1, 0, 2, 24.795989))
sketch7.addConstraint(Sketcher.Constraint("DistanceY", 0, 2, -1, 1, 10.061534))
pad7 = body.newObject("PartDesign::Pad", "Pad006")
pad7.Profile = sketch7
pad7.Length = 12
doc.recompute()

chamfer = body.newObject("PartDesign::Chamfer", "Chamfer")
chamfer.Base = (pad7, edges_at(pad7, [(31.595, 0, 14)]))
chamfer.Size = 4

# Sketch on XY plane
sketch8 = body.newObject("Sketcher::SketchObject", "Sketch007")
sketch8.AttachmentSupport = (doc.getObject("XY_Plane"), [""])
sketch8.MapMode = "FlatFace"
sketch8.AttachmentOffset = App.Placement(V(0, 0, 2), App.Rotation())
sketch8.addGeometry(Part.Circle(V(-29, 13, 0), V(0, 0, 1), 1.5), False)
sketch8.addGeometry(Part.Circle(V(29, 13, 0), V(0, 0, 1), 1.5), False)
sketch8.addGeometry(Part.Circle(V(29, -13, 0), V(0, 0, 1), 1.5), False)
sketch8.addGeometry(Part.Circle(V(-29, -13, 0), V(0, 0, 1), 1.5), False)
sketch8.addConstraint(Sketcher.Constraint("Equal", 0, 1))
sketch8.addConstraint(Sketcher.Constraint("Equal", 1, 2))
sketch8.addConstraint(Sketcher.Constraint("Equal", 2, 3))
sketch8.addConstraint(Sketcher.Constraint("Symmetric", 0, 3, 2, 3, -1, 1))
sketch8.addConstraint(Sketcher.Constraint("Symmetric", 1, 3, 3, 3, -1, 1))
sketch8.addConstraint(Sketcher.Constraint("Symmetric", 0, 3, 1, 3, -2))
sketch8.addConstraint(Sketcher.Constraint("Diameter", 0, 3.0))
sketch8.addConstraint(Sketcher.Constraint("DistanceX", 0, 3, -1, 1, 29.0))
sketch8.addConstraint(Sketcher.Constraint("DistanceY", -1, 1, 0, 3, 13.0))
pocket1 = body.newObject("PartDesign::Pocket", "Pocket")
pocket1.Profile = sketch8
pocket1.Type = "ThroughAll"

# Sketch on XY plane
sketch9 = body.newObject("Sketcher::SketchObject", "Sketch008")
sketch9.AttachmentSupport = (doc.getObject("XY_Plane"), [""])
sketch9.MapMode = "FlatFace"
sketch9.AttachmentOffset = App.Placement(V(0, 0, 13.2), App.Rotation())
sketch9.addGeometry(Part.LineSegment(V(-30.91, 1.62, 0), V(-30.91, -0.61, 0)), False)
sketch9.addGeometry(Part.LineSegment(V(-30.91, -0.61, 0), V(-30.71, -0.61, 0)), False)
sketch9.addGeometry(Part.LineSegment(V(-30.71, -0.61, 0), V(-30.71, 1.62, 0)), False)
sketch9.addGeometry(Part.LineSegment(V(-30.71, 1.62, 0), V(-30.91, 1.62, 0)), False)
sketch9.addConstraint(Sketcher.Constraint("Coincident", 0, 2, 1, 1))
sketch9.addConstraint(Sketcher.Constraint("Coincident", 1, 2, 2, 1))
sketch9.addConstraint(Sketcher.Constraint("Coincident", 2, 2, 3, 1))
sketch9.addConstraint(Sketcher.Constraint("Coincident", 3, 2, 0, 1))
sketch9.addConstraint(Sketcher.Constraint("Vertical", 0))
sketch9.addConstraint(Sketcher.Constraint("Horizontal", 1))
sketch9.addConstraint(Sketcher.Constraint("Vertical", 2))
sketch9.addConstraint(Sketcher.Constraint("Horizontal", 3))
sketch9.addConstraint(Sketcher.Constraint("DistanceX", 1, 1, 1, 2, 0.2))
sketch9.addConstraint(Sketcher.Constraint("DistanceY", 0, 2, 0, 1, 2.227007))
sketch9.addConstraint(Sketcher.Constraint("DistanceY", 0, 2, -1, 1, 0.607819))
sketch9.addConstraint(Sketcher.Constraint("DistanceX", 0, 2, -1, 1, 30.913495))
pocket2 = body.newObject("PartDesign::Pocket", "Pocket001")
pocket2.Profile = sketch9
pocket2.Length = 0.4

doc.recompute()
